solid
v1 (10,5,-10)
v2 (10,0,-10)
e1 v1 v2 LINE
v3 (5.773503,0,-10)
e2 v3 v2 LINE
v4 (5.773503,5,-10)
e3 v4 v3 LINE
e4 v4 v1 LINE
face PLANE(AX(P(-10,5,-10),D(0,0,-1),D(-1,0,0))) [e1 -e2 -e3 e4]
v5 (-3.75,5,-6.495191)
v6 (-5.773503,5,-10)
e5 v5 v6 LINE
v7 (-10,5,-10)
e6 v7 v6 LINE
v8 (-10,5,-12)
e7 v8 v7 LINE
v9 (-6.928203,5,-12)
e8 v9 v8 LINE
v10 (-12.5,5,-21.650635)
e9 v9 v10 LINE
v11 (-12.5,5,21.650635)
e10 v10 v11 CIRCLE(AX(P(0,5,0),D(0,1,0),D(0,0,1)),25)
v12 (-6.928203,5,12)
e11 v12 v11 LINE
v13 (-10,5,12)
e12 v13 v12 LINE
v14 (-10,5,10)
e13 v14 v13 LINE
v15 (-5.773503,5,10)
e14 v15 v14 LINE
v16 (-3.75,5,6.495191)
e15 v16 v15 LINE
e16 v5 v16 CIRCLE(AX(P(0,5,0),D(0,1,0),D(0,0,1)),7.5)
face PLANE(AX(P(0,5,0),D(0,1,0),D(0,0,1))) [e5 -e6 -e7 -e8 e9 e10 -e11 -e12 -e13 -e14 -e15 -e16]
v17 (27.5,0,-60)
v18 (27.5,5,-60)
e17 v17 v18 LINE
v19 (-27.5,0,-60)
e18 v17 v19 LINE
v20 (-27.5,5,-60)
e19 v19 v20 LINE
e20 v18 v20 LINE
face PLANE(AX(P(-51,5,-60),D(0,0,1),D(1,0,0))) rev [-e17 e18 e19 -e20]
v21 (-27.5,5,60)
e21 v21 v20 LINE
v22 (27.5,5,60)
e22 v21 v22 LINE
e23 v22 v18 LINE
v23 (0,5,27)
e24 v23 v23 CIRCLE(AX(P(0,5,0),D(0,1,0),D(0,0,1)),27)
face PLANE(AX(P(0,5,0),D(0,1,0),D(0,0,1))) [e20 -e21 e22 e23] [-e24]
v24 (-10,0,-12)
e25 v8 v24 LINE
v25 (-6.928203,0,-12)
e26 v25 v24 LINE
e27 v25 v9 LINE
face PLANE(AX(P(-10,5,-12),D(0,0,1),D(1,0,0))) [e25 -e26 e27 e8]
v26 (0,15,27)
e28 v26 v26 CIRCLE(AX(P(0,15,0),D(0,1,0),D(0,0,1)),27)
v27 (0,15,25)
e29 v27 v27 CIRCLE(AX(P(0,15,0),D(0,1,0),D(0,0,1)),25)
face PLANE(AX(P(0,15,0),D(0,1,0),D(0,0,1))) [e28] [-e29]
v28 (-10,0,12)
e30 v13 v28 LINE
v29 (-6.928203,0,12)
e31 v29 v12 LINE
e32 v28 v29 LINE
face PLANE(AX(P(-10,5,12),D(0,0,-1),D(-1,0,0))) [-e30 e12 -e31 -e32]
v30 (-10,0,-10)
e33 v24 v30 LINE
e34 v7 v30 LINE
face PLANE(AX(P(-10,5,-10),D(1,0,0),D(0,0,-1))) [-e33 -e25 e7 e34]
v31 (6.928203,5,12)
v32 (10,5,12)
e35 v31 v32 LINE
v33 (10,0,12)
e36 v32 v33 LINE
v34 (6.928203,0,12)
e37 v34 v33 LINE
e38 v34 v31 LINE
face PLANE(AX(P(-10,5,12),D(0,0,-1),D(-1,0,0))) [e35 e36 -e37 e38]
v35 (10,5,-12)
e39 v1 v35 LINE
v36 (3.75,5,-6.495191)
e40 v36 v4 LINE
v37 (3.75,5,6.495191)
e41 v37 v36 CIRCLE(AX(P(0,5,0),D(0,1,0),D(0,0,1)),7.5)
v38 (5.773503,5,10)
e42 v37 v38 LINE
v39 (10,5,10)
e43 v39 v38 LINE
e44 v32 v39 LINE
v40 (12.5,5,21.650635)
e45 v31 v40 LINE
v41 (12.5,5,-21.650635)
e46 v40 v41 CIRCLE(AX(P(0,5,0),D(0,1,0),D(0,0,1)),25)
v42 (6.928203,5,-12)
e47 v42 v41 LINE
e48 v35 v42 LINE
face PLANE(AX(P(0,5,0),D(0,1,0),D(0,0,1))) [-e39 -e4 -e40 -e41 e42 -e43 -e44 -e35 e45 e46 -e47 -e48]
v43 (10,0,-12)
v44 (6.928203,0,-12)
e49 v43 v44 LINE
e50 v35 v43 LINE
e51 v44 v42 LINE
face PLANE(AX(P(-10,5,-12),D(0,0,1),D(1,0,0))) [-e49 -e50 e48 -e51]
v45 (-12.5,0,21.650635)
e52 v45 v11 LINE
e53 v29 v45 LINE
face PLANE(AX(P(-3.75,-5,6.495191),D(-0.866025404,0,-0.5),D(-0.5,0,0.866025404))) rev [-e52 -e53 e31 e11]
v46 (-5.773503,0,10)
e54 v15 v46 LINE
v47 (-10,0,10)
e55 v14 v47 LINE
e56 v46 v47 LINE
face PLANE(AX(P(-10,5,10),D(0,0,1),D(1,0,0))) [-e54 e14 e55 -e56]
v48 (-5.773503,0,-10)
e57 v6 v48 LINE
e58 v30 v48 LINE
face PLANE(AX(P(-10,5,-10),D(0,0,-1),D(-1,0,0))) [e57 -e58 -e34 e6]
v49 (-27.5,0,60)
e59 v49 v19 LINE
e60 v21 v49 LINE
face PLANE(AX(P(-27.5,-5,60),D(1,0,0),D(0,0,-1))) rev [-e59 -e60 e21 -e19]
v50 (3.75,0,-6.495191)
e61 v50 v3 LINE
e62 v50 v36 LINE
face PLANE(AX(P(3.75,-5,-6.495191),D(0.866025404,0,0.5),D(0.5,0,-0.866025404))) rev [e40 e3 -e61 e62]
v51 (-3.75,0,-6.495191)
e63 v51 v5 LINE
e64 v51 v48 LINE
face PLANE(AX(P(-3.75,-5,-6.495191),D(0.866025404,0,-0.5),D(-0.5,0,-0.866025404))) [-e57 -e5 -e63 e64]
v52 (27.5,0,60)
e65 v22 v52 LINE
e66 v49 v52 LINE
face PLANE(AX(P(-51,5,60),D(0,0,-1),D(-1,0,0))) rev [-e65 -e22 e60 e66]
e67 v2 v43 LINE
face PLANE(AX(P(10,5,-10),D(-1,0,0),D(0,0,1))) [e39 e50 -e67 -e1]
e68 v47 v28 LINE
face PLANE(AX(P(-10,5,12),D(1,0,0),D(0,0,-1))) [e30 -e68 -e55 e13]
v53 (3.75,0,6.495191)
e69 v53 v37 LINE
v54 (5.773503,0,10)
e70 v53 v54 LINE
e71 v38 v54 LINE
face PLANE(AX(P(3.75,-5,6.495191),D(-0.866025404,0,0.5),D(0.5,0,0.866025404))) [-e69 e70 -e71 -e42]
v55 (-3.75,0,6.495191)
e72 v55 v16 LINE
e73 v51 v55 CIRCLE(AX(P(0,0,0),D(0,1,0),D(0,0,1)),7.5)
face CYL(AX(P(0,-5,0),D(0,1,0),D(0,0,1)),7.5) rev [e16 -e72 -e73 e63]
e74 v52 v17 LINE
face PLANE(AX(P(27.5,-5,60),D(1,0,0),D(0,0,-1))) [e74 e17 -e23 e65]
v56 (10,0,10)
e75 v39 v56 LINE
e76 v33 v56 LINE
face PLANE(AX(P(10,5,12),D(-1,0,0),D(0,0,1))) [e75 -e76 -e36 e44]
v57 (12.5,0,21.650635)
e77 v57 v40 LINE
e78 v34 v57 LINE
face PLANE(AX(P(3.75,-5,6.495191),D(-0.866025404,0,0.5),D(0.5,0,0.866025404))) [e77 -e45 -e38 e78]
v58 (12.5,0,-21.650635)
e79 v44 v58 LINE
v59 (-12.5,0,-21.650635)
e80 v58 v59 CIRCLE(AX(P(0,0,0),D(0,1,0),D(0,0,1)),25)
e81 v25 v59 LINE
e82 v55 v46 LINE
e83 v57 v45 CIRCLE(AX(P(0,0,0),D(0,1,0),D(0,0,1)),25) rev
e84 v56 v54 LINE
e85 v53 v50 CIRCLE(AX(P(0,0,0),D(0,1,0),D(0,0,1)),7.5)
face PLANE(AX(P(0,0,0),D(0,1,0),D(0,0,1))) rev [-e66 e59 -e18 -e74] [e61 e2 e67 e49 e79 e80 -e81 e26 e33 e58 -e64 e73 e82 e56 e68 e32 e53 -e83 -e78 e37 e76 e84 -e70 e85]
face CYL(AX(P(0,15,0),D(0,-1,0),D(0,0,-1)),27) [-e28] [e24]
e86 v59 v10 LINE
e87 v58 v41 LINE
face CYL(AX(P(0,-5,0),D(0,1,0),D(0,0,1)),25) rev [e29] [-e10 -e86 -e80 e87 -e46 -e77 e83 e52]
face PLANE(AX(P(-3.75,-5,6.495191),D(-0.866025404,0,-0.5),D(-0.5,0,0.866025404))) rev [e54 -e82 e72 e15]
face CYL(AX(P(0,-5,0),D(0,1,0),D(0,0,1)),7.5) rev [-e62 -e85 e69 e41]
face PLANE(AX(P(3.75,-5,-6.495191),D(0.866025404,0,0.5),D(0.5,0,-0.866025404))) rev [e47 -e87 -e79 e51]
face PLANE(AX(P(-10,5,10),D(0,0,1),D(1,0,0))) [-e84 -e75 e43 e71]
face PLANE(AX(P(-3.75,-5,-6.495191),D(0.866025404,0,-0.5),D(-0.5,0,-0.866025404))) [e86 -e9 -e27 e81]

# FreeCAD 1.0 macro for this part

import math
import FreeCAD as App
import Part
import Sketcher
Q = App.Units.Quantity

doc = App.newDocument("Part")
body = doc.addObject("PartDesign::Body", "Body")

sketch1 = body.newObject("Sketcher::SketchObject", "Sketch")
sketch1.AttachmentSupport = (doc.getObject("XZ_Plane"), [""])
sketch1.MapMode = "FlatFace"
sketch1.addGeometry([
    Part.LineSegment(App.Vector(-51, -60, 0), App.Vector(-51, 60, 0)),
    Part.LineSegment(App.Vector(-51, 60, 0), App.Vector(51, 60, 0)),
    Part.LineSegment(App.Vector(51, 60, 0), App.Vector(51, -60, 0)),
    Part.LineSegment(App.Vector(51, -60, 0), App.Vector(-51, -60, 0)),
    Part.LineSegment(App.Vector(10, 12, 0), App.Vector(-10, 12, 0)),
    Part.LineSegment(App.Vector(-10, 12, 0), App.Vector(-10, 10, 0)),
    Part.LineSegment(App.Vector(-10, 10, 0), App.Vector(10, 10, 0)),
    Part.LineSegment(App.Vector(10, 10, 0), App.Vector(10, 12, 0)),
    Part.LineSegment(App.Vector(10, -10, 0), App.Vector(-10, -10, 0)),
    Part.LineSegment(App.Vector(-10, -10, 0), App.Vector(-10, -12, 0)),
    Part.LineSegment(App.Vector(-10, -12, 0), App.Vector(10, -12, 0)),
    Part.LineSegment(App.Vector(10, -12, 0), App.Vector(10, -10, 0)),
], False)
sketch1.addConstraint([
    Sketcher.Constraint("Coincident", 0, 2, 1, 1),
    Sketcher.Constraint("Coincident", 1, 2, 2, 1),
    Sketcher.Constraint("Coincident", 2, 2, 3, 1),
    Sketcher.Constraint("Coincident", 3, 2, 0, 1),
    Sketcher.Constraint("Coincident", 4, 2, 5, 1),
    Sketcher.Constraint("Coincident", 5, 2, 6, 1),
    Sketcher.Constraint("Coincident", 6, 2, 7, 1),
    Sketcher.Constraint("Coincident", 7, 2, 4, 1),
    Sketcher.Constraint("Coincident", 8, 2, 9, 1),
    Sketcher.Constraint("Coincident", 9, 2, 10, 1),
    Sketcher.Constraint("Coincident", 10, 2, 11, 1),
    Sketcher.Constraint("Coincident", 11, 2, 8, 1),
    Sketcher.Constraint("Vertical", 0),
    Sketcher.Constraint("Horizontal", 1),
    Sketcher.Constraint("Vertical", 2),
    Sketcher.Constraint("Horizontal", 3),
    Sketcher.Constraint("Horizontal", 4),
    Sketcher.Constraint("Vertical", 5),
    Sketcher.Constraint("Horizontal", 6),
    Sketcher.Constraint("Vertical", 7),
    Sketcher.Constraint("Horizontal", 8),
    Sketcher.Constraint("Vertical", 9),
    Sketcher.Constraint("Horizontal", 10),
    Sketcher.Constraint("Vertical", 11),
    Sketcher.Constraint("Symmetric", 0, 2, 2, 2, -1, 1),
    Sketcher.Constraint("Symmetric", 6, 2, 8, 2, -1, 1),
    Sketcher.Constraint("Symmetric", 4, 2, 10, 2, -1, 1),
    Sketcher.Constraint("Vertical", 5, 2, 8, 2),
    Sketcher.Constraint("DistanceX", 1, 1, 1, 2, 102.0),
    Sketcher.Constraint("DistanceX", 4, 2, 4, 1, 20.0),
    Sketcher.Constraint("DistanceY", 0, 1, 0, 2, 120.0),
    Sketcher.Constraint("DistanceY", 5, 2, 5, 1, 2.0),
    Sketcher.Constraint("DistanceY", -1, 1, 4, 2, 12.0),
])
pad1 = body.newObject("PartDesign::Pad", "Pad")
pad1.Profile = sketch1
pad1.Length = 5
pad1.Reversed = True

sketch2 = body.newObject("Sketcher::SketchObject", "Sketch001")
sketch2.AttachmentSupport = (doc.getObject("XZ_Plane"), [""])
sketch2.MapMode = "FlatFace"
sketch2.AttachmentOffset = App.Placement(App.Vector(0, 0, -5), App.Rotation())
sketch2.addGeometry([
    Part.LineSegment(App.Vector(4, -6, 0), App.Vector(12, -22, 0)),
    Part.ArcOfCircle(Part.Circle(App.Vector(0, 0, 0), App.Vector(0, 0, 1), 25), math.radians(-120), math.radians(-60)),
    Part.LineSegment(App.Vector(-12, -22, 0), App.Vector(-4, -6, 0)),
    Part.ArcOfCircle(Part.Circle(App.Vector(0, 0, 0), App.Vector(0, 0, 1), 7), math.radians(120), math.radians(240)),
    Part.LineSegment(App.Vector(-4, 6, 0), App.Vector(-12, 22, 0)),
    Part.ArcOfCircle(Part.Circle(App.Vector(0, 0, 0), App.Vector(0, 0, 1), 25), math.radians(60), math.radians(120)),
    Part.LineSegment(App.Vector(12, 22, 0), App.Vector(4, 6, 0)),
    Part.ArcOfCircle(Part.Circle(App.Vector(0, 0, 0), App.Vector(0, 0, 1), 7), math.radians(-60), math.radians(60)),
], False)
sketch2.addConstraint([
    Sketcher.Constraint("Coincident", 0, 2, 1, 2),
    Sketcher.Constraint("Coincident", 1, 1, 2, 1),
    Sketcher.Constraint("Coincident", 2, 2, 3, 2),
    Sketcher.Constraint("Coincident", 3, 1, 4, 1),
    Sketcher.Constraint("Coincident", 4, 2, 5, 2),
    Sketcher.Constraint("Coincident", 5, 1, 6, 1),
    Sketcher.Constraint("Coincident", 6, 2, 7, 2),
    Sketcher.Constraint("Coincident", 7, 1, 0, 1),
    Sketcher.Constraint("Coincident", 1, 3, -1, 1),
    Sketcher.Constraint("Coincident", 3, 3, -1, 1),
    Sketcher.Constraint("Coincident", 5, 3, -1, 1),
    Sketcher.Constraint("Coincident", 7, 3, -1, 1),
    Sketcher.Constraint("Equal", 1, 5),
    Sketcher.Constraint("Equal", 3, 7),
    Sketcher.Constraint("Parallel", 0, 4),
    Sketcher.Constraint("Parallel", 2, 6),
    Sketcher.Constraint("Horizontal", 0, 2, 1, 1),
    Sketcher.Constraint("Horizontal", 4, 2, 5, 1),
    Sketcher.Constraint("Horizontal", 3, 1, 6, 2),
    Sketcher.Constraint("Vertical", 2, 2, 3, 1),
    Sketcher.Constraint("Radius", 1, 25.0),
    Sketcher.Constraint("Radius", 3, 7.5),
    Sketcher.Constraint("Angle", 0, Q("-60 deg")),
    Sketcher.Constraint("DistanceX", 1, 1, 0, 2, 25.0),
])
pocket1 = body.newObject("PartDesign::Pocket", "Pocket")
pocket1.Profile = sketch2
pocket1.Length = 10
pocket1.Reversed = True

sketch3 = body.newObject("Sketcher::SketchObject", "Sketch002")
sketch3.AttachmentSupport = (doc.getObject("XZ_Plane"), [""])
sketch3.MapMode = "FlatFace"
sketch3.AttachmentOffset = App.Placement(App.Vector(0, 0, -15), App.Rotation())
sketch3.addGeometry([
    Part.Circle(App.Vector(0, 0, 0), App.Vector(0, 0, 1), 27),
    Part.Circle(App.Vector(0, 0, 0), App.Vector(0, 0, 1), 25),
], False)
sketch3.addConstraint([
    Sketcher.Constraint("Coincident", 0, 3, -1, 1),
    Sketcher.Constraint("Coincident", 1, 3, -1, 1),
    Sketcher.Constraint("Diameter", 0, 54.0),
    Sketcher.Constraint("Diameter", 1, 50.0),
])
pad2 = body.newObject("PartDesign::Pad", "Pad001")
pad2.Profile = sketch3
pad2.Length = 10

sketch4 = body.newObject("Sketcher::SketchObject", "Sketch003")
sketch4.AttachmentSupport = (doc.getObject("XZ_Plane"), [""])
sketch4.MapMode = "FlatFace"
sketch4.AttachmentOffset = App.Placement(App.Vector(0, 0, -5), App.Rotation())
sketch4.addGeometry([
    Part.LineSegment(App.Vector(-51, -60, 0), App.Vector(-51, 60, 0)),
    Part.LineSegment(App.Vector(-51, 60, 0), App.Vector(-28, 60, 0)),
    Part.LineSegment(App.Vector(-28, 60, 0), App.Vector(-28, -60, 0)),
    Part.LineSegment(App.Vector(-28, -60, 0), App.Vector(-51, -60, 0)),
    Part.LineSegment(App.Vector(28, -60, 0), App.Vector(28, 60, 0)),
    Part.LineSegment(App.Vector(28, 60, 0), App.Vector(51, 60, 0)),
    Part.LineSegment(App.Vector(51, 60, 0), App.Vector(51, -60, 0)),
    Part.LineSegment(App.Vector(51, -60, 0), App.Vector(28, -60, 0)),
], False)
sketch4.addConstraint([
    Sketcher.Constraint("Coincident", 0, 2, 1, 1),
    Sketcher.Constraint("Coincident", 1, 2, 2, 1),
    Sketcher.Constraint("Coincident", 2, 2, 3, 1),
    Sketcher.Constraint("Coincident", 3, 2, 0, 1),
    Sketcher.Constraint("Coincident", 4, 2, 5, 1),
    Sketcher.Constraint("Coincident", 5, 2, 6, 1),
    Sketcher.Constraint("Coincident", 6, 2, 7, 1),
    Sketcher.Constraint("Coincident", 7, 2, 4, 1),
    Sketcher.Constraint("Vertical", 0),
    Sketcher.Constraint("Horizontal", 1),
    Sketcher.Constraint("Vertical", 2),
    Sketcher.Constraint("Horizontal", 3),
    Sketcher.Constraint("Vertical", 4),
    Sketcher.Constraint("Horizontal", 5),
    Sketcher.Constraint("Vertical", 6),
    Sketcher.Constraint("Horizontal", 7),
    Sketcher.Constraint("Symmetric", 2, 2, 4, 2, -1, 1),
    Sketcher.Constraint("Symmetric", 0, 2, 6, 2, -1, 1),
    Sketcher.Constraint("Horizontal", 1, 2, 4, 2),
    Sketcher.Constraint("DistanceY", 0, 1, 0, 2, 120.0),
    Sketcher.Constraint("DistanceX", 1, 1, 1, 2, 23.5),
    Sketcher.Constraint("DistanceX", 0, 2, -1, 1, 51.0),
])
pocket2 = body.newObject("PartDesign::Pocket", "Pocket001")
pocket2.Profile = sketch4
pocket2.Length = 10
pocket2.Reversed = True

doc.recompute()
